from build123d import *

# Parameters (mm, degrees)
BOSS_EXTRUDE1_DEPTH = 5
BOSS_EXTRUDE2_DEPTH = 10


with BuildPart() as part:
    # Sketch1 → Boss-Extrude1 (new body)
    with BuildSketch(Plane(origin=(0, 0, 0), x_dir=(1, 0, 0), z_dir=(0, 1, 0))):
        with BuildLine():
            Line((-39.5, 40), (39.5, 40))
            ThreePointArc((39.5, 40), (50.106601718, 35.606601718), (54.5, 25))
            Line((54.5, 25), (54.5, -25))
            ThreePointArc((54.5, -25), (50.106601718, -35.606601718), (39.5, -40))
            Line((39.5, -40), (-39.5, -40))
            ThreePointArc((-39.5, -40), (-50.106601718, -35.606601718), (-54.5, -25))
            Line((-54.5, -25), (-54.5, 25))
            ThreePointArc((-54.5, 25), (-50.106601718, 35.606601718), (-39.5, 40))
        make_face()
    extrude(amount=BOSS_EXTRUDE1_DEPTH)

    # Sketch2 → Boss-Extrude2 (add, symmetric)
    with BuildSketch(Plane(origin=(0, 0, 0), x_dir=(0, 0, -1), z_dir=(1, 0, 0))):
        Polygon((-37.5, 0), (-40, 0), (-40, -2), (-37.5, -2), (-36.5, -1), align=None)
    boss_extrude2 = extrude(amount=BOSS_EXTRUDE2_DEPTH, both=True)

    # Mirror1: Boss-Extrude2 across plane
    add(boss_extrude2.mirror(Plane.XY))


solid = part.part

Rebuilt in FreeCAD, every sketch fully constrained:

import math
import FreeCAD as App
import Part
import Sketcher

doc = App.newDocument("Part")
body = doc.addObject("PartDesign::Body", "Body")

sketch1 = doc.addObject("Sketcher::SketchObject", "Sketch")
body.addObject(sketch1)
sketch1.AttachmentSupport = (doc.XZ_Plane, [""])
sketch1.MapMode = "FlatFace"
sketch1.addGeometry(Part.LineSegment(App.Vector(40, -40, 0), App.Vector(-40, -40, 0)), False)
sketch1.addGeometry(Part.ArcOfCircle(Part.Circle(App.Vector(-40, -25, 0), App.Vector(0, 0, 1), 15), math.radians(180), math.radians(270)), False)
sketch1.addGeometry(Part.LineSegment(App.Vector(-54, -25, 0), App.Vector(-54, 25, 0)), False)
sketch1.addGeometry(Part.ArcOfCircle(Part.Circle(App.Vector(-40, 25, 0), App.Vector(0, 0, 1), 15), math.radians(90), math.radians(180)), False)
sketch1.addGeometry(Part.LineSegment(App.Vector(-40, 40, 0), App.Vector(40, 40, 0)), False)
sketch1.addGeometry(Part.ArcOfCircle(Part.Circle(App.Vector(40, 25, 0), App.Vector(0, 0, 1), 15), math.radians(0), math.radians(90)), False)
sketch1.addGeometry(Part.LineSegment(App.Vector(54, 25, 0), App.Vector(54, -25, 0)), False)
sketch1.addGeometry(Part.ArcOfCircle(Part.Circle(App.Vector(40, -25, 0), App.Vector(0, 0, 1), 15), math.radians(-90), math.radians(0)), False)
sketch1.addConstraint(Sketcher.Constraint("Tangent", 0, 2, 1, 2))
sketch1.addConstraint(Sketcher.Constraint("Tangent", 1, 1, 2, 1))
sketch1.addConstraint(Sketcher.Constraint("Tangent", 2, 2, 3, 2))
sketch1.addConstraint(Sketcher.Constraint("Tangent", 3, 1, 4, 1))
sketch1.addConstraint(Sketcher.Constraint("Tangent", 4, 2, 5, 2))
sketch1.addConstraint(Sketcher.Constraint("Tangent", 5, 1, 6, 1))
sketch1.addConstraint(Sketcher.Constraint("Tangent", 6, 2, 7, 2))
sketch1.addConstraint(Sketcher.Constraint("Tangent", 7, 1, 0, 1))
sketch1.addConstraint(Sketcher.Constraint("Horizontal", 0))
sketch1.addConstraint(Sketcher.Constraint("Vertical", 2))
sketch1.addConstraint(Sketcher.Constraint("Horizontal", 4))
sketch1.addConstraint(Sketcher.Constraint("Vertical", 6))
sketch1.addConstraint(Sketcher.Constraint("Equal", 1, 3))
sketch1.addConstraint(Sketcher.Constraint("Equal", 3, 5))
sketch1.addConstraint(Sketcher.Constraint("Equal", 5, 7))
sketch1.addConstraint(Sketcher.Constraint("Symmetric", 1, 3, 5, 3, -1, 1))
sketch1.addConstraint(Sketcher.Constraint("Radius", 1, 15.0))
sketch1.addConstraint(Sketcher.Constraint("DistanceX", 0, 2, 0, 1, 79.0))
sketch1.addConstraint(Sketcher.Constraint("DistanceY", 2, 1, 2, 2, 50.0))
pad1 = doc.addObject("PartDesign::Pad", "Pad")
body.addObject(pad1)
pad1.Profile = sketch1
pad1.Length = 5
pad1.Reversed = True

sketch2 = doc.addObject("Sketcher::SketchObject", "Sketch001")
body.addObject(sketch2)
sketch2.AttachmentSupport = (doc.YZ_Plane, [""])
sketch2.MapMode = "FlatFace"
sketch2.addGeometry(Part.LineSegment(App.Vector(0, 37.5, 0), App.Vector(0, 40, 0)), False)
sketch2.addGeometry(Part.LineSegment(App.Vector(0, 40, 0), App.Vector(-2, 40, 0)), False)
sketch2.addGeometry(Part.LineSegment(App.Vector(-2, 40, 0), App.Vector(-2, 37.5, 0)), False)
sketch2.addGeometry(Part.LineSegment(App.Vector(-2, 37.5, 0), App.Vector(-1, 36.5, 0)), False)
sketch2.addGeometry(Part.LineSegment(App.Vector(-1, 36.5, 0), App.Vector(0, 37.5, 0)), False)
sketch2.addConstraint(Sketcher.Constraint("Coincident", 0, 2, 1, 1))
sketch2.addConstraint(Sketcher.Constraint("Coincident", 1, 2, 2, 1))
sketch2.addConstraint(Sketcher.Constraint("Coincident", 2, 2, 3, 1))
sketch2.addConstraint(Sketcher.Constraint("Coincident", 3, 2, 4, 1))
sketch2.addConstraint(Sketcher.Constraint("Coincident", 4, 2, 0, 1))
sketch2.addConstraint(Sketcher.Constraint("Vertical", 0))
sketch2.addConstraint(Sketcher.Constraint("Horizontal", 1))
sketch2.addConstraint(Sketcher.Constraint("Vertical", 2))
sketch2.addConstraint(Sketcher.Constraint("PointOnObject", 0, 2, -2))
sketch2.addConstraint(Sketcher.Constraint("Perpendicular", 3, 4))
sketch2.addConstraint(Sketcher.Constraint("Horizontal", 2, 2, 4, 2))
sketch2.addConstraint(Sketcher.Constraint("Equal", 3, 4))
sketch2.addConstraint(Sketcher.Constraint("DistanceX", 1, 2, 1, 1, 2.0))
sketch2.addConstraint(Sketcher.Constraint("DistanceY", 0, 1, 0, 2, 2.5))
sketch2.addConstraint(Sketcher.Constraint("DistanceY", -1, 1, 0, 2, 40.0))
pad2 = doc.addObject("PartDesign::Pad", "Pad001")
body.addObject(pad2)
pad2.Profile = sketch2
pad2.Length = 20
pad2.Midplane = True
doc.recompute()

mirrored = doc.addObject("PartDesign::Mirrored", "Mirrored")
body.addObject(mirrored)
mirrored.Originals = [pad2]
mirrored.MirrorPlane = (doc.XY_Plane, [""])
body.Tip = mirrored

doc.recompute()
